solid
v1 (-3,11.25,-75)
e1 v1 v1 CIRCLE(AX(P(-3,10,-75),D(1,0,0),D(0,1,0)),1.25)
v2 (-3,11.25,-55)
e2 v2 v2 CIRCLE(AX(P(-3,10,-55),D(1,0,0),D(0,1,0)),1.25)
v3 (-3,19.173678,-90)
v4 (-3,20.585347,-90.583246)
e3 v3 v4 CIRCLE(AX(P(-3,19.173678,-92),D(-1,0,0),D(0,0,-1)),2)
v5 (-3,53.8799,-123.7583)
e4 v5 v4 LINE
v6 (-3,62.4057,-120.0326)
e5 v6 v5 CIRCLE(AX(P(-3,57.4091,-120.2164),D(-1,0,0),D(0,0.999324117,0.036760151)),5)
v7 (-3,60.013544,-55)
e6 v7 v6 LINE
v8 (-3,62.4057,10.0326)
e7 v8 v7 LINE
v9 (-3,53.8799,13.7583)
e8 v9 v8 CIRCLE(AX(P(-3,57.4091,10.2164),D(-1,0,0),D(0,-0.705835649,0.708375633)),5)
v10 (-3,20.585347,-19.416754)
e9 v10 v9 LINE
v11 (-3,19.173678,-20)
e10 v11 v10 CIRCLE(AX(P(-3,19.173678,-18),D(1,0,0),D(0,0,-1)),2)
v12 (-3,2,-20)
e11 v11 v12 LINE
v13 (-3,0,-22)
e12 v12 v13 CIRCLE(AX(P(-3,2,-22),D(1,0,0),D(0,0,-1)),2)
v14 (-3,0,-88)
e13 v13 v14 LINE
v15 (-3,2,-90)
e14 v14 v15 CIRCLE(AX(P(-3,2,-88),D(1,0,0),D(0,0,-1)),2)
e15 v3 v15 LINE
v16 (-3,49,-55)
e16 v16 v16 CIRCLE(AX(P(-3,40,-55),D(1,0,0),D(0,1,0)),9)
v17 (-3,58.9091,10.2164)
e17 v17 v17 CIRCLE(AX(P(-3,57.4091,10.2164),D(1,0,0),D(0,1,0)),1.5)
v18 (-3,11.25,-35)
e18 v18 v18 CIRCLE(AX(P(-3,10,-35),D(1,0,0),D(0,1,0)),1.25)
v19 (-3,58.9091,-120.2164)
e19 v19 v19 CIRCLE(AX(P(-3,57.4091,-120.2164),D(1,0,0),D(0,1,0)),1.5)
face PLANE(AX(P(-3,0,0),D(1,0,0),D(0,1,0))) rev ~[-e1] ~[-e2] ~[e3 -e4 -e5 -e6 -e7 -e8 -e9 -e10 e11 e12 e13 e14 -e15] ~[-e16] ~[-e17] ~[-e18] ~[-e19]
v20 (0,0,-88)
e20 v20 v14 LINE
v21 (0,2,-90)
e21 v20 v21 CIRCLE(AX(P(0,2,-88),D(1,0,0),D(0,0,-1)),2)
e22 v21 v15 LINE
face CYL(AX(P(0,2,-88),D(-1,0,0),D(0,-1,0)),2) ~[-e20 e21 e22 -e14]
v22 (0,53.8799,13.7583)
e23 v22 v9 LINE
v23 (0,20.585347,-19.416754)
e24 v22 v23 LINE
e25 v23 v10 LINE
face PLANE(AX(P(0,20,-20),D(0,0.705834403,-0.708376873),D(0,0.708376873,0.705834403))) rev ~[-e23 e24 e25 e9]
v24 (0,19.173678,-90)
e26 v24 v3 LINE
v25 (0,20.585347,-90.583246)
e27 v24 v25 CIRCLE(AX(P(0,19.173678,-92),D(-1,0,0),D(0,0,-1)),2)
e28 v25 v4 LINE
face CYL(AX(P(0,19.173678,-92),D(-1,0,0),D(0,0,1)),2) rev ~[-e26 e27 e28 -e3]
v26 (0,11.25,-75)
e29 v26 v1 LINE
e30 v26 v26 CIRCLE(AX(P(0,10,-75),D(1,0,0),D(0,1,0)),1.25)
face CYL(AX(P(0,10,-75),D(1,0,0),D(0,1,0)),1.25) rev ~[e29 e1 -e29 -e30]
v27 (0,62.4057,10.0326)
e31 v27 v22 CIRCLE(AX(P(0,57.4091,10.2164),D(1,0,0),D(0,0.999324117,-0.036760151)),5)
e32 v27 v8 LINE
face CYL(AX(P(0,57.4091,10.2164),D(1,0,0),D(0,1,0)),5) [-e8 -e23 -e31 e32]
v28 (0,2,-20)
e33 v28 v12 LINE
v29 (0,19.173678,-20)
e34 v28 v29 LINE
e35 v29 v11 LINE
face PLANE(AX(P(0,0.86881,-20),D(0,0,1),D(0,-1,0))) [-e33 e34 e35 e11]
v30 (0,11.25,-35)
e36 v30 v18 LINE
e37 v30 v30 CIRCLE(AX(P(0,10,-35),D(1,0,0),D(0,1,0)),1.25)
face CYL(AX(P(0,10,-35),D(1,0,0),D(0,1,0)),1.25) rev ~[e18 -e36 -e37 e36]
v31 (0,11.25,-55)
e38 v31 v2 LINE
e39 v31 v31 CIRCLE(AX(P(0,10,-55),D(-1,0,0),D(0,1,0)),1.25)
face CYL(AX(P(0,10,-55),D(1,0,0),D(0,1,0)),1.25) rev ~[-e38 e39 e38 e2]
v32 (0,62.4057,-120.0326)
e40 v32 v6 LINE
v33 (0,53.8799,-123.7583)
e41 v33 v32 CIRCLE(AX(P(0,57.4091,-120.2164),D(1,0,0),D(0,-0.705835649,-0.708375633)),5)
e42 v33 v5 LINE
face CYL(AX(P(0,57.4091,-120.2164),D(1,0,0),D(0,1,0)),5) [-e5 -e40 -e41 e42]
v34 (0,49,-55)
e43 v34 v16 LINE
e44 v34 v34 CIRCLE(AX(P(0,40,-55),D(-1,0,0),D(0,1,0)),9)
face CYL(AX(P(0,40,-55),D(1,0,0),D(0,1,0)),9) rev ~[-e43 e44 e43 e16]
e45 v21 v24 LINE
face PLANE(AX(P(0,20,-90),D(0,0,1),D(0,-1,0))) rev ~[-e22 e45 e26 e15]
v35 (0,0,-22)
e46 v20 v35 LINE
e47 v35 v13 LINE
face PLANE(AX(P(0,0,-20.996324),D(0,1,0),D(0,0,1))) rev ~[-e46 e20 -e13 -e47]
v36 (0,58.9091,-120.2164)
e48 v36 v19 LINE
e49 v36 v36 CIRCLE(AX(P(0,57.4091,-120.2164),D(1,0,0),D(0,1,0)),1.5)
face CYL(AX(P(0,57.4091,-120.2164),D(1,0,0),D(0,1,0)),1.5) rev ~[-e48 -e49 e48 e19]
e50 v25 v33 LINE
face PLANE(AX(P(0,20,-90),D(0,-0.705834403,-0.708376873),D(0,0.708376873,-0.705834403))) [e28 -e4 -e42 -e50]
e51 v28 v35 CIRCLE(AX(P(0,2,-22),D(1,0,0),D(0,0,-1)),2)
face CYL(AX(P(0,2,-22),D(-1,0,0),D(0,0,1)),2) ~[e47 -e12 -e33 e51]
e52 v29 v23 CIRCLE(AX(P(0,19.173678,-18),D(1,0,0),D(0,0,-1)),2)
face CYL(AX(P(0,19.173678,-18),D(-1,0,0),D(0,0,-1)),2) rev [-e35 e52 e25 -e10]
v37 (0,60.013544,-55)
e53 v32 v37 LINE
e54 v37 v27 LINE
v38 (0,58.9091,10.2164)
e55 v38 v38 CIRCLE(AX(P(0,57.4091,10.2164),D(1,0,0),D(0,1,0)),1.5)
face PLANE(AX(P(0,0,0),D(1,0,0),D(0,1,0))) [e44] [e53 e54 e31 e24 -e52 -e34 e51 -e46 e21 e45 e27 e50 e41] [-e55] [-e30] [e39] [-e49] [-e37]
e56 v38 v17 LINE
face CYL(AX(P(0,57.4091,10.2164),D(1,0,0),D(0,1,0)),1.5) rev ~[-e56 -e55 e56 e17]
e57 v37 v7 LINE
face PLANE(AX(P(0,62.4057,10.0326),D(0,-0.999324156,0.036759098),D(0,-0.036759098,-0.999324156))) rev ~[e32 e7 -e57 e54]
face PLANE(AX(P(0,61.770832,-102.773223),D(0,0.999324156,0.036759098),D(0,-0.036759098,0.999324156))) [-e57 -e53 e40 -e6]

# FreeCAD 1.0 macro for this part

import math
import FreeCAD as App
import Part
import Sketcher


def edges_at(feature, points):
    """Names of the edges that pass closest to the given points."""
    edges = feature.Shape.Edges
    near = lambda p: min(range(len(edges)), key=lambda i: edges[i].distToShape(Part.Vertex(*p))[0])
    return sorted({f"Edge{near(p) + 1}" for p in points})

doc = App.newDocument("Part")
body = doc.addObject("PartDesign::Body", "Body")

# Sketch on YZ plane
sketch1 = body.newObject("Sketcher::SketchObject", "Sketch")
sketch1.AttachmentSupport = (doc.getObject("YZ_Plane"), [""])
sketch1.MapMode = "FlatFace"
sketch1.addGeometry(Part.LineSegment(App.Vector(0, -20, 0), App.Vector(0, -90, 0)), False)
sketch1.addGeometry(Part.LineSegment(App.Vector(0, -90, 0), App.Vector(20, -90, 0)), False)
sketch1.addGeometry(Part.LineSegment(App.Vector(20, -90, 0), App.Vector(53.8799, -123.7583, 0)), False)
sketch1.addGeometry(Part.ArcOfCircle(Part.Circle(App.Vector(57.4091, -120.2164, 0), App.Vector(0, 0, 1), 5), math.radians(-134.897094), math.radians(2.106676)), False)
sketch1.addGeometry(Part.LineSegment(App.Vector(62.4057, -120.0326, 0), App.Vector(60.013544, -55, 0)), False)
sketch1.addGeometry(Part.LineSegment(App.Vector(60.013544, -55, 0), App.Vector(62.4057, 10.0326, 0)), False)
sketch1.addGeometry(Part.ArcOfCircle(Part.Circle(App.Vector(57.4091, 10.2164, 0), App.Vector(0, 0, 1), 5), math.radians(-2.106676), math.radians(134.897094)), False)
sketch1.addGeometry(Part.LineSegment(App.Vector(53.8799, 13.7583, 0), App.Vector(20, -20, 0)), False)
sketch1.addGeometry(Part.LineSegment(App.Vector(20, -20, 0), App.Vector(0, -20, 0)), False)
sketch1.addGeometry(Part.Circle(App.Vector(10, -35, 0), App.Vector(0, 0, 1), 1.25), False)
sketch1.addGeometry(Part.Circle(App.Vector(10, -55, 0), App.Vector(0, 0, 1), 1.25), False)
sketch1.addGeometry(Part.Circle(App.Vector(10, -75, 0), App.Vector(0, 0, 1), 1.25), False)
sketch1.addGeometry(Part.Circle(App.Vector(40, -55, 0), App.Vector(0, 0, 1), 9), False)
sketch1.addGeometry(Part.Circle(App.Vector(57.4091, 10.2164, 0), App.Vector(0, 0, 1), 1.5), False)
sketch1.addGeometry(Part.Circle(App.Vector(57.4091, -120.2164, 0), App.Vector(0, 0, 1), 1.5), False)
sketch1.addConstraint(Sketcher.Constraint("Coincident", 0, 2, 1, 1))
sketch1.addConstraint(Sketcher.Constraint("Coincident", 1, 2, 2, 1))
sketch1.addConstraint(Sketcher.Constraint("Coincident", 2, 2, 3, 1))
sketch1.addConstraint(Sketcher.Constraint("Coincident", 3, 2, 4, 1))
sketch1.addConstraint(Sketcher.Constraint("Coincident", 4, 2, 5, 1))
sketch1.addConstraint(Sketcher.Constraint("Coincident", 5, 2, 6, 1))
sketch1.addConstraint(Sketcher.Constraint("Coincident", 6, 2, 7, 1))
sketch1.addConstraint(Sketcher.Constraint("Coincident", 7, 2, 8, 1))
sketch1.addConstraint(Sketcher.Constraint("Coincident", 8, 2, 0, 1))
sketch1.addConstraint(Sketcher.Constraint("Vertical", 0))
sketch1.addConstraint(Sketcher.Constraint("Horizontal", 1))
sketch1.addConstraint(Sketcher.Constraint("Horizontal", 8))
sketch1.addConstraint(Sketcher.Constraint("Coincident", 13, 3, 6, 3))
sketch1.addConstraint(Sketcher.Constraint("Coincident", 14, 3, 3, 3))
sketch1.addConstraint(Sketcher.Constraint("PointOnObject", 0, 2, -2))
sketch1.addConstraint(Sketcher.Constraint("Diameter", 12, 18.0))
sketch1.addConstraint(Sketcher.Constraint("Diameter", 13, 3.0))
sketch1.addConstraint(Sketcher.Constraint("Diameter", 14, 3.0))
sketch1.addConstraint(Sketcher.Constraint("Radius", 3, 5.0))
sketch1.addConstraint(Sketcher.Constraint("Radius", 6, 5.0))
sketch1.addConstraint(Sketcher.Constraint("Diameter", 9, 2.5))
sketch1.addConstraint(Sketcher.Constraint("Diameter", 10, 2.5))
sketch1.addConstraint(Sketcher.Constraint("Diameter", 11, 2.5))
sketch1.addConstraint(Sketcher.Constraint("DistanceX", 1, 1, 1, 2, 20.0))
sketch1.addConstraint(Sketcher.Constraint("DistanceX", 8, 2, 8, 1, 20.0))
sketch1.addConstraint(Sketcher.Constraint("DistanceY", 0, 2, 0, 1, 70.0))
sketch1.addConstraint(Sketcher.Constraint("DistanceX", -1, 1, 9, 3, 10.0))
sketch1.addConstraint(Sketcher.Constraint("DistanceX", -1, 1, 10, 3, 10.0))
sketch1.addConstraint(Sketcher.Constraint("DistanceY", 10, 3, -1, 1, 55.0))
sketch1.addConstraint(Sketcher.Constraint("DistanceX", -1, 1, 11, 3, 10.0))
sketch1.addConstraint(Sketcher.Constraint("DistanceX", -1, 1, 12, 3, 40.0))
sketch1.addConstraint(Sketcher.Constraint("DistanceY", 12, 3, -1, 1, 55.0))
sketch1.addConstraint(Sketcher.Constraint("DistanceY", 0, 2, -1, 1, 90.0))
sketch1.addConstraint(Sketcher.Constraint("DistanceY", 4, 2, -1, 1, 55.0))
sketch1.addConstraint(Sketcher.Constraint("DistanceY", 10, 3, 9, 3, 20.0))
sketch1.addConstraint(Sketcher.Constraint("DistanceY", 11, 3, 10, 3, 20.0))
sketch1.addConstraint(Sketcher.Constraint("DistanceX", -1, 1, 2, 2, 53.88))
sketch1.addConstraint(Sketcher.Constraint("DistanceX", -1, 1, 6, 2, 53.88))
sketch1.addConstraint(Sketcher.Constraint("DistanceX", -1, 1, 3, 3, 57.409))
sketch1.addConstraint(Sketcher.Constraint("DistanceX", -1, 1, 6, 3, 57.409))
sketch1.addConstraint(Sketcher.Constraint("Distance", 2, 47.8275))
sketch1.addConstraint(Sketcher.Constraint("Distance", 4, 65.0766))
sketch1.addConstraint(Sketcher.Constraint("Distance", 5, 65.0766))
sketch1.addConstraint(Sketcher.Constraint("Distance", 7, 47.8275))
sketch1.addConstraint(Sketcher.Constraint("DistanceY", 3, 2, -1, 1, 120.0326))
pad1 = body.newObject("PartDesign::Pad", "Pad")
pad1.Profile = sketch1
pad1.Length = 3
pad1.Reversed = True
doc.recompute()

fillet = body.newObject("PartDesign::Fillet", "Fillet")
fillet.Base = (pad1, edges_at(pad1, [
    (-1.5, 20, -90),
    (-1.5, 0, -90),
    (-1.5, 0, -20),
    (-1.5, 20, -20),
    (-1.5, 60.014, -55),
]))
fillet.Radius = 2

doc.recompute()
